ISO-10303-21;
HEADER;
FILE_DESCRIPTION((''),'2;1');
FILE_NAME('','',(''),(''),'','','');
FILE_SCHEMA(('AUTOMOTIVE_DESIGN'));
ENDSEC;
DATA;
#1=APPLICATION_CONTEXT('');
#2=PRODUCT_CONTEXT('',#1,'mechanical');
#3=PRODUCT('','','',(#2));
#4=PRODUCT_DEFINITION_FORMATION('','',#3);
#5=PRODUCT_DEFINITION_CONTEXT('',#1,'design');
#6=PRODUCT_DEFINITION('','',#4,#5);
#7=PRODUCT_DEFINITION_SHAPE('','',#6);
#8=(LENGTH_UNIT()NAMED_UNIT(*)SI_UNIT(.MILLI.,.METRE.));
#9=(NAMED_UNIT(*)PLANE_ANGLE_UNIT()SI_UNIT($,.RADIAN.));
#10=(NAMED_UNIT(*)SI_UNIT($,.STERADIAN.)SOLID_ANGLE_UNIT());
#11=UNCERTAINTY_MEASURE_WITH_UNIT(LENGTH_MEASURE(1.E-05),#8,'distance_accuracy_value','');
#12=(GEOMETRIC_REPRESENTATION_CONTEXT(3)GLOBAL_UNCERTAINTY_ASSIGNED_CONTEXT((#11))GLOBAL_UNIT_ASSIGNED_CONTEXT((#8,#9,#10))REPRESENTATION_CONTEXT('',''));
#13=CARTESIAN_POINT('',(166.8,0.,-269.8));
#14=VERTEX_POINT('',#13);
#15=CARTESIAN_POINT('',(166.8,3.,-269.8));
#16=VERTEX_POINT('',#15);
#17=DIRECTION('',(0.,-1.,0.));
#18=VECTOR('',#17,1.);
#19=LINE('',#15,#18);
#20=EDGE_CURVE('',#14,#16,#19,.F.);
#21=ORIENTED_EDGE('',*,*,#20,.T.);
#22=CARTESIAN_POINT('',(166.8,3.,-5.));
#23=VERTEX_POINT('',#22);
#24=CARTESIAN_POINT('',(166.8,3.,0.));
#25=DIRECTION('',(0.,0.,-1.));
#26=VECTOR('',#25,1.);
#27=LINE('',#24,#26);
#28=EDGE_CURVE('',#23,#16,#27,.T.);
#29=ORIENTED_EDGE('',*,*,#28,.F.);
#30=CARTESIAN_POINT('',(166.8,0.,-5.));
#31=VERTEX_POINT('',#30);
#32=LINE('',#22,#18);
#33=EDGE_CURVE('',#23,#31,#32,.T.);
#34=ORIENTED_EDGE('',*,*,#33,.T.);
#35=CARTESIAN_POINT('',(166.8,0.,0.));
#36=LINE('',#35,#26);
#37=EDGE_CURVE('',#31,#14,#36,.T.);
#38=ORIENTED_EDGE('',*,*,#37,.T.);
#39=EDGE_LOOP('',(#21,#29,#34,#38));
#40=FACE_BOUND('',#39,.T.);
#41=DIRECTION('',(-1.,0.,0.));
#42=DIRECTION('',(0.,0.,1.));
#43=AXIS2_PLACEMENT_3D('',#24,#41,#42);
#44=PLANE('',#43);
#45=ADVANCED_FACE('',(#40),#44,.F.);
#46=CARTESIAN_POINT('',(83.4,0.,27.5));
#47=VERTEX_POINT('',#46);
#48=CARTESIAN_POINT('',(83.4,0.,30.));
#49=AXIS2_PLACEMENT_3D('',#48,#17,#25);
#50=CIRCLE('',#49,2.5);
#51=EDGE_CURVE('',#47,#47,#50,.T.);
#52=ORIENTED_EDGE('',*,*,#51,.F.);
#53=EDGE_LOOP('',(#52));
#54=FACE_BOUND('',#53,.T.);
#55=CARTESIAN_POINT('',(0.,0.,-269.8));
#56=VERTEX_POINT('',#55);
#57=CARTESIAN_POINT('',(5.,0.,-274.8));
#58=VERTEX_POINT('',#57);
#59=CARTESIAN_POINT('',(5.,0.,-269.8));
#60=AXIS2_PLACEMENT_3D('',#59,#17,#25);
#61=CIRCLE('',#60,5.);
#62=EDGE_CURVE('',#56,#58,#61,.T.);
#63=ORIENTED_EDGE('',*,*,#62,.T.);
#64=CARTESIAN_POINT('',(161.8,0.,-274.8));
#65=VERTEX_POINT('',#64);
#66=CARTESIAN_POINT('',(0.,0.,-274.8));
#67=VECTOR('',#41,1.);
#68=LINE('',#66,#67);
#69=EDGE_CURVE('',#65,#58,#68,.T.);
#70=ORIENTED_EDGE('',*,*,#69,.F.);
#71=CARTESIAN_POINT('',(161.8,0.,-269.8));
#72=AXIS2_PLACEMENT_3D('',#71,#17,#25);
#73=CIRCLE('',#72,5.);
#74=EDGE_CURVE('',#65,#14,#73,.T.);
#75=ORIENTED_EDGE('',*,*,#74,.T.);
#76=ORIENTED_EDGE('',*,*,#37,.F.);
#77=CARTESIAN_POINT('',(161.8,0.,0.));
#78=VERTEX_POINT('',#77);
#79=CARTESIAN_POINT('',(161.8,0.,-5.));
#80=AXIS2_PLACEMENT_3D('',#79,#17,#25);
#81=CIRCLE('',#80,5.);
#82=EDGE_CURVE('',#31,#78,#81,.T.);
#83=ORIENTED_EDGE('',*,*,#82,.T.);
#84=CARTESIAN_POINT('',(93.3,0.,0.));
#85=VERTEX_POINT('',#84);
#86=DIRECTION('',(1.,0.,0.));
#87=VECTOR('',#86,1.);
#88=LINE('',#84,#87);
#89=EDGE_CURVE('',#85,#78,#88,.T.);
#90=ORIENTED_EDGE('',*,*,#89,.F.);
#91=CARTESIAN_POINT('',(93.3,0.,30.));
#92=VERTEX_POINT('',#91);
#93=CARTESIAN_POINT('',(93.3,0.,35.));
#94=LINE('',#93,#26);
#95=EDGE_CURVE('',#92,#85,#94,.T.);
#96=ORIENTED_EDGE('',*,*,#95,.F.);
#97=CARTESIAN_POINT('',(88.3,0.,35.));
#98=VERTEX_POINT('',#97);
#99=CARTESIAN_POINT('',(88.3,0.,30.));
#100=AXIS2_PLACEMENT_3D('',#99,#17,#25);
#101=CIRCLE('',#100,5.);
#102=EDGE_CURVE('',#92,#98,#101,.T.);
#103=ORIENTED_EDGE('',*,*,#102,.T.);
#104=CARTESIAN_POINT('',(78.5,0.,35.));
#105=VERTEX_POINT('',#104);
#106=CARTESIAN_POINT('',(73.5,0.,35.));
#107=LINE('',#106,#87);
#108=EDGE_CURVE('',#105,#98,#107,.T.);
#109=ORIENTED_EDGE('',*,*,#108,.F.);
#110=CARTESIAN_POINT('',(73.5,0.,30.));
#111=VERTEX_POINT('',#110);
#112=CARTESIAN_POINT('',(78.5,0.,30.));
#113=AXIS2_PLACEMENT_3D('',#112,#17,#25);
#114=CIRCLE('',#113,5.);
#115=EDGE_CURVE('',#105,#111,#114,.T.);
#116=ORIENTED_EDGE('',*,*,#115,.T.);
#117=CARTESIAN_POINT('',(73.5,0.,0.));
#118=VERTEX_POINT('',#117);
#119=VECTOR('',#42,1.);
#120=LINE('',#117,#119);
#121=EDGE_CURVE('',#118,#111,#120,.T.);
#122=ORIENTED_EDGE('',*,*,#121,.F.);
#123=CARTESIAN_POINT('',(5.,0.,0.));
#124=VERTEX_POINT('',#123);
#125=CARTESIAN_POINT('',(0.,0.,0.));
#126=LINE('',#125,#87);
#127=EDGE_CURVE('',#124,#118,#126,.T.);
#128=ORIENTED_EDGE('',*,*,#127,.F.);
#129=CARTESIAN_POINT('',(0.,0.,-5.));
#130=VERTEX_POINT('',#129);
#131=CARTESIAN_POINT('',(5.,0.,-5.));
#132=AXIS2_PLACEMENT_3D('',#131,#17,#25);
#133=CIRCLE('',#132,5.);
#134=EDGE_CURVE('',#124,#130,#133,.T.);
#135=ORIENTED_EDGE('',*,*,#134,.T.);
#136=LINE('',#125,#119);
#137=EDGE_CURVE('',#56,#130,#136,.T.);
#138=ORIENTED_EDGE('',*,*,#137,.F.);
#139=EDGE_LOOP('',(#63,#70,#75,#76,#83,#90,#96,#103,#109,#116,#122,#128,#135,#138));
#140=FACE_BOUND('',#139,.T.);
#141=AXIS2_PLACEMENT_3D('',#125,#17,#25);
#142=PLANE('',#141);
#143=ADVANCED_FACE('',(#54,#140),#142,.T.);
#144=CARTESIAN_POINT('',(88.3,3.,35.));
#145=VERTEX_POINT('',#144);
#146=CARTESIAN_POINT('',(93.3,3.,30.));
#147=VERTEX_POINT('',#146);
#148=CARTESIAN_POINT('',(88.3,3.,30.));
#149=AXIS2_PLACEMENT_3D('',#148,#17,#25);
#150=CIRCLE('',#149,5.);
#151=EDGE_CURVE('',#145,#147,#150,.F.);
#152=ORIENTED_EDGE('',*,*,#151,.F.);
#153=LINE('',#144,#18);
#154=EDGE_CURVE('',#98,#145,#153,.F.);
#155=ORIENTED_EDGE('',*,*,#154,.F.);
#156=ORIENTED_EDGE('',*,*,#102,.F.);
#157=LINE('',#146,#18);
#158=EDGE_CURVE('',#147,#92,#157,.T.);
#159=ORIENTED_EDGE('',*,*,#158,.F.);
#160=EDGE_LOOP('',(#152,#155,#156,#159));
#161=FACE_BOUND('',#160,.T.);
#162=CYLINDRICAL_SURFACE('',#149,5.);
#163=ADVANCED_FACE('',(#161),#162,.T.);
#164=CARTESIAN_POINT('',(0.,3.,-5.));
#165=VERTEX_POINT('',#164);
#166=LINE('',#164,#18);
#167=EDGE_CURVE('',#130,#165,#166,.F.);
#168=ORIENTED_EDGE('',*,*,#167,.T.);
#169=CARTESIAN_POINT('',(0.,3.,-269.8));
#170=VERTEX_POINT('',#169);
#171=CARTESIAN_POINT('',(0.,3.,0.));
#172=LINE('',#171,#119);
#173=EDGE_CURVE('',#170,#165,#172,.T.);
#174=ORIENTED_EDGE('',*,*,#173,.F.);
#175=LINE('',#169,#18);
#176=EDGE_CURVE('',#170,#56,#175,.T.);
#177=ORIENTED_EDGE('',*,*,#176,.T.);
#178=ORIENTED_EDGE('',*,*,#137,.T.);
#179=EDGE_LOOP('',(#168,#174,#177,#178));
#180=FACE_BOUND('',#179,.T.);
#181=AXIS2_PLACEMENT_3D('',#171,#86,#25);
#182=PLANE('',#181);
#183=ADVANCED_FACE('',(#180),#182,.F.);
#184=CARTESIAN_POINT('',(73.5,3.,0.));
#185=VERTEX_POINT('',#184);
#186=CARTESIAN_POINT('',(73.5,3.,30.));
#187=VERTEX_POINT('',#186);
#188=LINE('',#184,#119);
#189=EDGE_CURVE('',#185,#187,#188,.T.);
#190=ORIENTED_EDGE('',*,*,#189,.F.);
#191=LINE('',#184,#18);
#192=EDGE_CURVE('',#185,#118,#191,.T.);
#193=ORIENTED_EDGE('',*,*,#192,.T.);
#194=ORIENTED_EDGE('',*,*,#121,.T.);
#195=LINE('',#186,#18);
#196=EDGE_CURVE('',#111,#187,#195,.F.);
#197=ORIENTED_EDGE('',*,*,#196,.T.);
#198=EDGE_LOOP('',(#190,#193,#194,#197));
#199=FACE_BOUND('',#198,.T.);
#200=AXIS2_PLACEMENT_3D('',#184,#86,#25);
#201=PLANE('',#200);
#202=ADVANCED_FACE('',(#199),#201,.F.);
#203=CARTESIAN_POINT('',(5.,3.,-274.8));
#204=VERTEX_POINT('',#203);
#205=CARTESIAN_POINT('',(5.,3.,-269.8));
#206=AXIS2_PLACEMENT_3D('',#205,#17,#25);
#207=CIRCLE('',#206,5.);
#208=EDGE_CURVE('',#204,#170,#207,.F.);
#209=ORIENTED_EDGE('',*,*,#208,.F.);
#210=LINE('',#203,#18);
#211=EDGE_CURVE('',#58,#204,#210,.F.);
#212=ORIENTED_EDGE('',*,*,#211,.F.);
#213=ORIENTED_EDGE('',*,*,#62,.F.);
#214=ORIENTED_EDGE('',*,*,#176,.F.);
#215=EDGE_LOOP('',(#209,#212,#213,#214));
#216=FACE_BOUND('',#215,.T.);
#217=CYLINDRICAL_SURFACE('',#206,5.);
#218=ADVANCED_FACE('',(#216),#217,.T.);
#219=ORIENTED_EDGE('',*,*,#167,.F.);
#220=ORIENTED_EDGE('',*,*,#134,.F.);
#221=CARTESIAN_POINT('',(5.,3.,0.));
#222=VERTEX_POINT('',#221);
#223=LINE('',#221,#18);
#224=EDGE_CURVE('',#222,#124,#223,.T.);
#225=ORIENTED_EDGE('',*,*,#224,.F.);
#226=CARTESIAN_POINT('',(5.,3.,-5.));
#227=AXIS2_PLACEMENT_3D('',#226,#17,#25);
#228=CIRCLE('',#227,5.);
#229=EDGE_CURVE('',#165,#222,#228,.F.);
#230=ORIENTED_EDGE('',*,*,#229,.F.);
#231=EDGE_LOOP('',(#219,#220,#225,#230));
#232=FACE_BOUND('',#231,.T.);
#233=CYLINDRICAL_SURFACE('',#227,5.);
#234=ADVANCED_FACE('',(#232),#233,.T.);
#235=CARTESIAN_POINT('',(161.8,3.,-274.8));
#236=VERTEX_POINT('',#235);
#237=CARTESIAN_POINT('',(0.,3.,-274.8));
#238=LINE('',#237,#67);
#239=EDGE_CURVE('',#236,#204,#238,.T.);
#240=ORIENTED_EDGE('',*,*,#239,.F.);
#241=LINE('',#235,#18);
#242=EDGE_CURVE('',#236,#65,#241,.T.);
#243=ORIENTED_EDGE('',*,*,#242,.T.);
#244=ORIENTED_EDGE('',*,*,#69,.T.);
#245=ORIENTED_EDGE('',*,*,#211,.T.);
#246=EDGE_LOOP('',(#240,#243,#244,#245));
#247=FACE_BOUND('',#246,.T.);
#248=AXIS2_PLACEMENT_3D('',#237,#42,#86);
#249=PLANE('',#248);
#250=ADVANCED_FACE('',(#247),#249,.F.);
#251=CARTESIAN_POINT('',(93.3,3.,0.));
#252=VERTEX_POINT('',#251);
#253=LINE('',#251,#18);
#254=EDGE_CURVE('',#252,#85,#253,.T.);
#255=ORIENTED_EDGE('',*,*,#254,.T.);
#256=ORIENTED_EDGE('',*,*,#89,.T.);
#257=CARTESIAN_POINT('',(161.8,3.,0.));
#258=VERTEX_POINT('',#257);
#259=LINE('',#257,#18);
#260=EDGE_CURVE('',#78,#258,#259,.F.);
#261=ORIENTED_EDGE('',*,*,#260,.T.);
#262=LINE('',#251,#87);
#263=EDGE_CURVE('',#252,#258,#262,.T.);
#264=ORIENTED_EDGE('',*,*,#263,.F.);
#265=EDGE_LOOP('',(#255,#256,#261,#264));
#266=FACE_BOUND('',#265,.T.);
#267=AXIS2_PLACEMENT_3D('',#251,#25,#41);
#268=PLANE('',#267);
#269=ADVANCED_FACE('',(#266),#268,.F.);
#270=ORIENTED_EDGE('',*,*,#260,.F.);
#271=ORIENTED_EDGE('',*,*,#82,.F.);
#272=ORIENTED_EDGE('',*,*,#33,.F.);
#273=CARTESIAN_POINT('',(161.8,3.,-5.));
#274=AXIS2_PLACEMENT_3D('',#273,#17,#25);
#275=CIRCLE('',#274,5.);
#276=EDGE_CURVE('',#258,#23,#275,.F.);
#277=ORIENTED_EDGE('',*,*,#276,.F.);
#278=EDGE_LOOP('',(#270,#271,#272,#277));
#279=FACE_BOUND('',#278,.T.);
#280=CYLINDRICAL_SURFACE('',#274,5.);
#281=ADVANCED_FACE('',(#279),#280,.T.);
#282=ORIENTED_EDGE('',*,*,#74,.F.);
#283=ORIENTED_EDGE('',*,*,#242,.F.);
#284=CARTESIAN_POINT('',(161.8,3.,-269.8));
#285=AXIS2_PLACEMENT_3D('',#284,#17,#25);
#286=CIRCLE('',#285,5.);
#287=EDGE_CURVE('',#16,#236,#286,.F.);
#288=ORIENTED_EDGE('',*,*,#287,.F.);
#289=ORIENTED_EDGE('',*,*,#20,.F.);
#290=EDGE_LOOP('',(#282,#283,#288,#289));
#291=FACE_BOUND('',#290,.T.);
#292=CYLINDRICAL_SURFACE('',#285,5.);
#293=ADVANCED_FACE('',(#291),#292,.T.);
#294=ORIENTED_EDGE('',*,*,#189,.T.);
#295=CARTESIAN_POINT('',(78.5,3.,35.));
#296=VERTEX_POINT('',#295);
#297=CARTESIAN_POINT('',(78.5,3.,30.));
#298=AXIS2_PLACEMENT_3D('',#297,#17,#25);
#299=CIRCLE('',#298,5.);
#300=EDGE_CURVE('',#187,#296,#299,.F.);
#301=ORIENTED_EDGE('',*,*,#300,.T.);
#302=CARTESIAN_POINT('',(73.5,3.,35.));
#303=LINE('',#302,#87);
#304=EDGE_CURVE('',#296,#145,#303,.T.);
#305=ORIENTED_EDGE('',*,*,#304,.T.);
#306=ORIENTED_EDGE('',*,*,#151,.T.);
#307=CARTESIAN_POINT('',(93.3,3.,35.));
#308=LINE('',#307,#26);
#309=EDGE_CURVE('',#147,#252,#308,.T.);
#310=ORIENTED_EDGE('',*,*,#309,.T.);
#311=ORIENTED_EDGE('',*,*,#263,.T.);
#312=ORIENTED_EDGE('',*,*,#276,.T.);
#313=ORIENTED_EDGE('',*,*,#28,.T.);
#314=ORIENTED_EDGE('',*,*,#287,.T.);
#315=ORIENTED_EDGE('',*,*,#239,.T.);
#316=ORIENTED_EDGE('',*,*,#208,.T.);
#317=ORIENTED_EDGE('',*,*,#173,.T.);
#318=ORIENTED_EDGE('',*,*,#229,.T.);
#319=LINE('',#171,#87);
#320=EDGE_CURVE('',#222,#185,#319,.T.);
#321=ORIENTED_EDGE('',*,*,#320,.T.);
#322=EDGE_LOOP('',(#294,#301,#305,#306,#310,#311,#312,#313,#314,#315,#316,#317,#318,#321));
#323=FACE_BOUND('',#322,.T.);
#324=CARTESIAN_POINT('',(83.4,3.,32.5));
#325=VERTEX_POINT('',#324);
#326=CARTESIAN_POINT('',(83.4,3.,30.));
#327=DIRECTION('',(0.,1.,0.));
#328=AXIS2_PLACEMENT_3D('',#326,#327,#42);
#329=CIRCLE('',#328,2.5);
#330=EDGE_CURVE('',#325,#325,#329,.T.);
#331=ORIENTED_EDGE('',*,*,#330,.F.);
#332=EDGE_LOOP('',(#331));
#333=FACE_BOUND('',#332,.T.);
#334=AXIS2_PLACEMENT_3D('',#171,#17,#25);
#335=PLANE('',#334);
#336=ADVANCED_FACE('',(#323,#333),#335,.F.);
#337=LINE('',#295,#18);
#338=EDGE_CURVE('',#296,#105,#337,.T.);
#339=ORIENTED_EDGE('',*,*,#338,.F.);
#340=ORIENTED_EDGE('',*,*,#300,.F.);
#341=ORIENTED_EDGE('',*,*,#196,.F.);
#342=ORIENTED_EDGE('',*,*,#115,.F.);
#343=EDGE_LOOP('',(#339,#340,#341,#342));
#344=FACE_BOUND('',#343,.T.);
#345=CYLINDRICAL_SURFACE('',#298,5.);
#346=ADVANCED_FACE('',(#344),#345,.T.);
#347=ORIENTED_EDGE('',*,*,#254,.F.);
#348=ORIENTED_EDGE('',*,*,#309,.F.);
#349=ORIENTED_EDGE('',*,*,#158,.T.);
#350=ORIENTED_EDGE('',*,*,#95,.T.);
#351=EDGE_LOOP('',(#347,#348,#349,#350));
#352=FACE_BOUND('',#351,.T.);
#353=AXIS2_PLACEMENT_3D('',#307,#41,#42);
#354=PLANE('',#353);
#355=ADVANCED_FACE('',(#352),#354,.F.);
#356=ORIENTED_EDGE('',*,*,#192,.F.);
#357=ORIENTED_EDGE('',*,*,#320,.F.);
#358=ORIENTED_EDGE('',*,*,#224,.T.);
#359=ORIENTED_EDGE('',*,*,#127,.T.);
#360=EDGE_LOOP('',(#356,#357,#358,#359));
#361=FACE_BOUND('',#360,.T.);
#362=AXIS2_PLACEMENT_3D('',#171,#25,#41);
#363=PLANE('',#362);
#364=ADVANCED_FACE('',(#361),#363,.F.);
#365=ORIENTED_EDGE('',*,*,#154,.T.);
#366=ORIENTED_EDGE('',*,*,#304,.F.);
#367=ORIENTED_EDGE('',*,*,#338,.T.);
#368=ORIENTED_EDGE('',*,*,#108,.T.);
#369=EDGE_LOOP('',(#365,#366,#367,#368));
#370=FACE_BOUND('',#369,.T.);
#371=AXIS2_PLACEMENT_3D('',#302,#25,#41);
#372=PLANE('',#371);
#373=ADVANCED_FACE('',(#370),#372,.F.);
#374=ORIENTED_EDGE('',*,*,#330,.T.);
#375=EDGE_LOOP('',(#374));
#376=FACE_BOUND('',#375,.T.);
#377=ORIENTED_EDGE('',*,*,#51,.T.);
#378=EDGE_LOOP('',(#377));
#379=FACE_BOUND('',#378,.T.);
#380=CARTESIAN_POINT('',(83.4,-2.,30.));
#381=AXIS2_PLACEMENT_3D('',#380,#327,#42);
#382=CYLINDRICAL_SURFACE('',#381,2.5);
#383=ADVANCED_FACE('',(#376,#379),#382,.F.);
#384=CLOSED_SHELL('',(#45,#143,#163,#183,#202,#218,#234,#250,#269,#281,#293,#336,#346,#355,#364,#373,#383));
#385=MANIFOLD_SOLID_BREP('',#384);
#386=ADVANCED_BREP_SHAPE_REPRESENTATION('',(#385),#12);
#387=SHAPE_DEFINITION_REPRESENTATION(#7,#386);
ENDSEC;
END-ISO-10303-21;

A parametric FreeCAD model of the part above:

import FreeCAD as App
import Part
import Sketcher

V = App.Vector
Q = App.Units.Quantity


def edges_at(feature, points):
    """Names of the edges that pass closest to the given points."""
    edges = feature.Shape.Edges
    near = lambda p: min(range(len(edges)), key=lambda i: edges[i].distToShape(Part.Vertex(*p))[0])
    return sorted({f"Edge{near(p) + 1}" for p in points})


def add_polygon(sketch, points):
    """Adds a closed chain of lines whose ends are joined by coincident constraints."""
    first, n = sketch.GeometryCount, len(points)
    for a, b in zip(points, points[1:] + points[:1]):
        sketch.addGeometry(Part.LineSegment(App.Vector(*a, 0), App.Vector(*b, 0)), False)
    for i in range(n):
        sketch.addConstraint(Sketcher.Constraint("Coincident", first + i, 2, first + (i + 1) % n, 1))

doc = App.newDocument("Part")
params = doc.addObject("Spreadsheet::Sheet", "Params")
for row, (alias, value) in enumerate([
    ("sketch1_height", "35 mm"),
    ("sketch1_width", "73.5 mm"),
    ("sketch1_width2", "19.8 mm"),
    ("sketch1_height2", "274.8 mm"),
    ("pad1_length", "3 mm"),
    ("sketch2_diameter", "5 mm"),
    ("pocket1_length", "5 mm"),
    ("fillet_radius", "5 mm"),
], start=1):
    params.set(f"A{row}", alias)
    params.set(f"B{row}", "=" + value)
    params.setAlias(f"B{row}", alias)

body = doc.addObject("PartDesign::Body", "Body")

# Sketch on XZ plane
sketch1 = body.newObject("Sketcher::SketchObject", "Sketch")
sketch1.AttachmentSupport = (doc.getObject("XZ_Plane"), [""])
sketch1.MapMode = "FlatFace"
add_polygon(sketch1, [(0, 0), (73.5, 0), (73.5, 35), (93.3, 35), (93.3, 0), (166.8, 0), (166.8, -274.8), (0, -274.8)])  # lines 0-7
sketch1.addConstraint([
    Sketcher.Constraint("Horizontal", 0),
    Sketcher.Constraint("Vertical", 1),
    Sketcher.Constraint("Horizontal", 2),
    Sketcher.Constraint("Vertical", 3),
    Sketcher.Constraint("Horizontal", 4),
    Sketcher.Constraint("Vertical", 5),
    Sketcher.Constraint("Horizontal", 6),
    Sketcher.Constraint("Vertical", 7),
    Sketcher.Constraint("Coincident", 7, 2, -1, 1),
    Sketcher.Constraint("PointOnObject", 3, 2, -1),
    Sketcher.Constraint("Equal", 0, 4),
    Sketcher.Constraint("DistanceY", 1, 1, 1, 2, Q("35 mm")),
    Sketcher.Constraint("DistanceX", 0, 1, 0, 2, Q("73.5 mm")),
    Sketcher.Constraint("DistanceX", 2, 1, 2, 2, Q("19.8 mm")),
    Sketcher.Constraint("DistanceY", 5, 2, 5, 1, Q("274.8 mm")),
])
sketch1.setExpression("Constraints[19]", "Params.sketch1_height")
sketch1.setExpression("Constraints[20]", "Params.sketch1_width")
sketch1.setExpression("Constraints[21]", "Params.sketch1_width2")
sketch1.setExpression("Constraints[22]", "Params.sketch1_height2")
pad1 = body.newObject("PartDesign::Pad", "Pad")
pad1.Profile = sketch1
pad1.setExpression("Length", "Params.pad1_length")
pad1.Reversed = True

# Sketch on XZ plane
sketch2 = body.newObject("Sketcher::SketchObject", "Sketch001")
sketch2.AttachmentSupport = (doc.getObject("XZ_Plane"), [""])
sketch2.MapMode = "FlatFace"
sketch2.AttachmentOffset = App.Placement(V(0, 0, -3), App.Rotation())
sketch2.addGeometry(Part.Circle(V(83.4, 30, 0), V(0, 0, 1), 2.5), False)
sketch2.addConstraint([
    Sketcher.Constraint("Diameter", 0, Q("5 mm")),
    Sketcher.Constraint("DistanceY", -1, 1, 0, 3, Q("30 mm")),
    Sketcher.Constraint("DistanceX", -1, 1, 0, 3, Q("83.4 mm")),
])
sketch2.setExpression("Constraints[0]", "Params.sketch2_diameter")
pocket1 = body.newObject("PartDesign::Pocket", "Pocket")
pocket1.Profile = sketch2
pocket1.setExpression("Length", "Params.pocket1_length")
pocket1.Reversed = True
doc.recompute()

fillet = body.newObject("PartDesign::Fillet", "Fillet")
fillet.Base = (pocket1, edges_at(pocket1, [
    (0, 1.5, -274.8),
    (166.8, 1.5, -274.8),
    (166.8, 1.5, 0),
    (93.3, 1.5, 35),
    (73.5, 1.5, 35),
    (0, 1.5, 0),
]))
fillet.setExpression("Radius", "Params.fillet_radius")

doc.recompute()
